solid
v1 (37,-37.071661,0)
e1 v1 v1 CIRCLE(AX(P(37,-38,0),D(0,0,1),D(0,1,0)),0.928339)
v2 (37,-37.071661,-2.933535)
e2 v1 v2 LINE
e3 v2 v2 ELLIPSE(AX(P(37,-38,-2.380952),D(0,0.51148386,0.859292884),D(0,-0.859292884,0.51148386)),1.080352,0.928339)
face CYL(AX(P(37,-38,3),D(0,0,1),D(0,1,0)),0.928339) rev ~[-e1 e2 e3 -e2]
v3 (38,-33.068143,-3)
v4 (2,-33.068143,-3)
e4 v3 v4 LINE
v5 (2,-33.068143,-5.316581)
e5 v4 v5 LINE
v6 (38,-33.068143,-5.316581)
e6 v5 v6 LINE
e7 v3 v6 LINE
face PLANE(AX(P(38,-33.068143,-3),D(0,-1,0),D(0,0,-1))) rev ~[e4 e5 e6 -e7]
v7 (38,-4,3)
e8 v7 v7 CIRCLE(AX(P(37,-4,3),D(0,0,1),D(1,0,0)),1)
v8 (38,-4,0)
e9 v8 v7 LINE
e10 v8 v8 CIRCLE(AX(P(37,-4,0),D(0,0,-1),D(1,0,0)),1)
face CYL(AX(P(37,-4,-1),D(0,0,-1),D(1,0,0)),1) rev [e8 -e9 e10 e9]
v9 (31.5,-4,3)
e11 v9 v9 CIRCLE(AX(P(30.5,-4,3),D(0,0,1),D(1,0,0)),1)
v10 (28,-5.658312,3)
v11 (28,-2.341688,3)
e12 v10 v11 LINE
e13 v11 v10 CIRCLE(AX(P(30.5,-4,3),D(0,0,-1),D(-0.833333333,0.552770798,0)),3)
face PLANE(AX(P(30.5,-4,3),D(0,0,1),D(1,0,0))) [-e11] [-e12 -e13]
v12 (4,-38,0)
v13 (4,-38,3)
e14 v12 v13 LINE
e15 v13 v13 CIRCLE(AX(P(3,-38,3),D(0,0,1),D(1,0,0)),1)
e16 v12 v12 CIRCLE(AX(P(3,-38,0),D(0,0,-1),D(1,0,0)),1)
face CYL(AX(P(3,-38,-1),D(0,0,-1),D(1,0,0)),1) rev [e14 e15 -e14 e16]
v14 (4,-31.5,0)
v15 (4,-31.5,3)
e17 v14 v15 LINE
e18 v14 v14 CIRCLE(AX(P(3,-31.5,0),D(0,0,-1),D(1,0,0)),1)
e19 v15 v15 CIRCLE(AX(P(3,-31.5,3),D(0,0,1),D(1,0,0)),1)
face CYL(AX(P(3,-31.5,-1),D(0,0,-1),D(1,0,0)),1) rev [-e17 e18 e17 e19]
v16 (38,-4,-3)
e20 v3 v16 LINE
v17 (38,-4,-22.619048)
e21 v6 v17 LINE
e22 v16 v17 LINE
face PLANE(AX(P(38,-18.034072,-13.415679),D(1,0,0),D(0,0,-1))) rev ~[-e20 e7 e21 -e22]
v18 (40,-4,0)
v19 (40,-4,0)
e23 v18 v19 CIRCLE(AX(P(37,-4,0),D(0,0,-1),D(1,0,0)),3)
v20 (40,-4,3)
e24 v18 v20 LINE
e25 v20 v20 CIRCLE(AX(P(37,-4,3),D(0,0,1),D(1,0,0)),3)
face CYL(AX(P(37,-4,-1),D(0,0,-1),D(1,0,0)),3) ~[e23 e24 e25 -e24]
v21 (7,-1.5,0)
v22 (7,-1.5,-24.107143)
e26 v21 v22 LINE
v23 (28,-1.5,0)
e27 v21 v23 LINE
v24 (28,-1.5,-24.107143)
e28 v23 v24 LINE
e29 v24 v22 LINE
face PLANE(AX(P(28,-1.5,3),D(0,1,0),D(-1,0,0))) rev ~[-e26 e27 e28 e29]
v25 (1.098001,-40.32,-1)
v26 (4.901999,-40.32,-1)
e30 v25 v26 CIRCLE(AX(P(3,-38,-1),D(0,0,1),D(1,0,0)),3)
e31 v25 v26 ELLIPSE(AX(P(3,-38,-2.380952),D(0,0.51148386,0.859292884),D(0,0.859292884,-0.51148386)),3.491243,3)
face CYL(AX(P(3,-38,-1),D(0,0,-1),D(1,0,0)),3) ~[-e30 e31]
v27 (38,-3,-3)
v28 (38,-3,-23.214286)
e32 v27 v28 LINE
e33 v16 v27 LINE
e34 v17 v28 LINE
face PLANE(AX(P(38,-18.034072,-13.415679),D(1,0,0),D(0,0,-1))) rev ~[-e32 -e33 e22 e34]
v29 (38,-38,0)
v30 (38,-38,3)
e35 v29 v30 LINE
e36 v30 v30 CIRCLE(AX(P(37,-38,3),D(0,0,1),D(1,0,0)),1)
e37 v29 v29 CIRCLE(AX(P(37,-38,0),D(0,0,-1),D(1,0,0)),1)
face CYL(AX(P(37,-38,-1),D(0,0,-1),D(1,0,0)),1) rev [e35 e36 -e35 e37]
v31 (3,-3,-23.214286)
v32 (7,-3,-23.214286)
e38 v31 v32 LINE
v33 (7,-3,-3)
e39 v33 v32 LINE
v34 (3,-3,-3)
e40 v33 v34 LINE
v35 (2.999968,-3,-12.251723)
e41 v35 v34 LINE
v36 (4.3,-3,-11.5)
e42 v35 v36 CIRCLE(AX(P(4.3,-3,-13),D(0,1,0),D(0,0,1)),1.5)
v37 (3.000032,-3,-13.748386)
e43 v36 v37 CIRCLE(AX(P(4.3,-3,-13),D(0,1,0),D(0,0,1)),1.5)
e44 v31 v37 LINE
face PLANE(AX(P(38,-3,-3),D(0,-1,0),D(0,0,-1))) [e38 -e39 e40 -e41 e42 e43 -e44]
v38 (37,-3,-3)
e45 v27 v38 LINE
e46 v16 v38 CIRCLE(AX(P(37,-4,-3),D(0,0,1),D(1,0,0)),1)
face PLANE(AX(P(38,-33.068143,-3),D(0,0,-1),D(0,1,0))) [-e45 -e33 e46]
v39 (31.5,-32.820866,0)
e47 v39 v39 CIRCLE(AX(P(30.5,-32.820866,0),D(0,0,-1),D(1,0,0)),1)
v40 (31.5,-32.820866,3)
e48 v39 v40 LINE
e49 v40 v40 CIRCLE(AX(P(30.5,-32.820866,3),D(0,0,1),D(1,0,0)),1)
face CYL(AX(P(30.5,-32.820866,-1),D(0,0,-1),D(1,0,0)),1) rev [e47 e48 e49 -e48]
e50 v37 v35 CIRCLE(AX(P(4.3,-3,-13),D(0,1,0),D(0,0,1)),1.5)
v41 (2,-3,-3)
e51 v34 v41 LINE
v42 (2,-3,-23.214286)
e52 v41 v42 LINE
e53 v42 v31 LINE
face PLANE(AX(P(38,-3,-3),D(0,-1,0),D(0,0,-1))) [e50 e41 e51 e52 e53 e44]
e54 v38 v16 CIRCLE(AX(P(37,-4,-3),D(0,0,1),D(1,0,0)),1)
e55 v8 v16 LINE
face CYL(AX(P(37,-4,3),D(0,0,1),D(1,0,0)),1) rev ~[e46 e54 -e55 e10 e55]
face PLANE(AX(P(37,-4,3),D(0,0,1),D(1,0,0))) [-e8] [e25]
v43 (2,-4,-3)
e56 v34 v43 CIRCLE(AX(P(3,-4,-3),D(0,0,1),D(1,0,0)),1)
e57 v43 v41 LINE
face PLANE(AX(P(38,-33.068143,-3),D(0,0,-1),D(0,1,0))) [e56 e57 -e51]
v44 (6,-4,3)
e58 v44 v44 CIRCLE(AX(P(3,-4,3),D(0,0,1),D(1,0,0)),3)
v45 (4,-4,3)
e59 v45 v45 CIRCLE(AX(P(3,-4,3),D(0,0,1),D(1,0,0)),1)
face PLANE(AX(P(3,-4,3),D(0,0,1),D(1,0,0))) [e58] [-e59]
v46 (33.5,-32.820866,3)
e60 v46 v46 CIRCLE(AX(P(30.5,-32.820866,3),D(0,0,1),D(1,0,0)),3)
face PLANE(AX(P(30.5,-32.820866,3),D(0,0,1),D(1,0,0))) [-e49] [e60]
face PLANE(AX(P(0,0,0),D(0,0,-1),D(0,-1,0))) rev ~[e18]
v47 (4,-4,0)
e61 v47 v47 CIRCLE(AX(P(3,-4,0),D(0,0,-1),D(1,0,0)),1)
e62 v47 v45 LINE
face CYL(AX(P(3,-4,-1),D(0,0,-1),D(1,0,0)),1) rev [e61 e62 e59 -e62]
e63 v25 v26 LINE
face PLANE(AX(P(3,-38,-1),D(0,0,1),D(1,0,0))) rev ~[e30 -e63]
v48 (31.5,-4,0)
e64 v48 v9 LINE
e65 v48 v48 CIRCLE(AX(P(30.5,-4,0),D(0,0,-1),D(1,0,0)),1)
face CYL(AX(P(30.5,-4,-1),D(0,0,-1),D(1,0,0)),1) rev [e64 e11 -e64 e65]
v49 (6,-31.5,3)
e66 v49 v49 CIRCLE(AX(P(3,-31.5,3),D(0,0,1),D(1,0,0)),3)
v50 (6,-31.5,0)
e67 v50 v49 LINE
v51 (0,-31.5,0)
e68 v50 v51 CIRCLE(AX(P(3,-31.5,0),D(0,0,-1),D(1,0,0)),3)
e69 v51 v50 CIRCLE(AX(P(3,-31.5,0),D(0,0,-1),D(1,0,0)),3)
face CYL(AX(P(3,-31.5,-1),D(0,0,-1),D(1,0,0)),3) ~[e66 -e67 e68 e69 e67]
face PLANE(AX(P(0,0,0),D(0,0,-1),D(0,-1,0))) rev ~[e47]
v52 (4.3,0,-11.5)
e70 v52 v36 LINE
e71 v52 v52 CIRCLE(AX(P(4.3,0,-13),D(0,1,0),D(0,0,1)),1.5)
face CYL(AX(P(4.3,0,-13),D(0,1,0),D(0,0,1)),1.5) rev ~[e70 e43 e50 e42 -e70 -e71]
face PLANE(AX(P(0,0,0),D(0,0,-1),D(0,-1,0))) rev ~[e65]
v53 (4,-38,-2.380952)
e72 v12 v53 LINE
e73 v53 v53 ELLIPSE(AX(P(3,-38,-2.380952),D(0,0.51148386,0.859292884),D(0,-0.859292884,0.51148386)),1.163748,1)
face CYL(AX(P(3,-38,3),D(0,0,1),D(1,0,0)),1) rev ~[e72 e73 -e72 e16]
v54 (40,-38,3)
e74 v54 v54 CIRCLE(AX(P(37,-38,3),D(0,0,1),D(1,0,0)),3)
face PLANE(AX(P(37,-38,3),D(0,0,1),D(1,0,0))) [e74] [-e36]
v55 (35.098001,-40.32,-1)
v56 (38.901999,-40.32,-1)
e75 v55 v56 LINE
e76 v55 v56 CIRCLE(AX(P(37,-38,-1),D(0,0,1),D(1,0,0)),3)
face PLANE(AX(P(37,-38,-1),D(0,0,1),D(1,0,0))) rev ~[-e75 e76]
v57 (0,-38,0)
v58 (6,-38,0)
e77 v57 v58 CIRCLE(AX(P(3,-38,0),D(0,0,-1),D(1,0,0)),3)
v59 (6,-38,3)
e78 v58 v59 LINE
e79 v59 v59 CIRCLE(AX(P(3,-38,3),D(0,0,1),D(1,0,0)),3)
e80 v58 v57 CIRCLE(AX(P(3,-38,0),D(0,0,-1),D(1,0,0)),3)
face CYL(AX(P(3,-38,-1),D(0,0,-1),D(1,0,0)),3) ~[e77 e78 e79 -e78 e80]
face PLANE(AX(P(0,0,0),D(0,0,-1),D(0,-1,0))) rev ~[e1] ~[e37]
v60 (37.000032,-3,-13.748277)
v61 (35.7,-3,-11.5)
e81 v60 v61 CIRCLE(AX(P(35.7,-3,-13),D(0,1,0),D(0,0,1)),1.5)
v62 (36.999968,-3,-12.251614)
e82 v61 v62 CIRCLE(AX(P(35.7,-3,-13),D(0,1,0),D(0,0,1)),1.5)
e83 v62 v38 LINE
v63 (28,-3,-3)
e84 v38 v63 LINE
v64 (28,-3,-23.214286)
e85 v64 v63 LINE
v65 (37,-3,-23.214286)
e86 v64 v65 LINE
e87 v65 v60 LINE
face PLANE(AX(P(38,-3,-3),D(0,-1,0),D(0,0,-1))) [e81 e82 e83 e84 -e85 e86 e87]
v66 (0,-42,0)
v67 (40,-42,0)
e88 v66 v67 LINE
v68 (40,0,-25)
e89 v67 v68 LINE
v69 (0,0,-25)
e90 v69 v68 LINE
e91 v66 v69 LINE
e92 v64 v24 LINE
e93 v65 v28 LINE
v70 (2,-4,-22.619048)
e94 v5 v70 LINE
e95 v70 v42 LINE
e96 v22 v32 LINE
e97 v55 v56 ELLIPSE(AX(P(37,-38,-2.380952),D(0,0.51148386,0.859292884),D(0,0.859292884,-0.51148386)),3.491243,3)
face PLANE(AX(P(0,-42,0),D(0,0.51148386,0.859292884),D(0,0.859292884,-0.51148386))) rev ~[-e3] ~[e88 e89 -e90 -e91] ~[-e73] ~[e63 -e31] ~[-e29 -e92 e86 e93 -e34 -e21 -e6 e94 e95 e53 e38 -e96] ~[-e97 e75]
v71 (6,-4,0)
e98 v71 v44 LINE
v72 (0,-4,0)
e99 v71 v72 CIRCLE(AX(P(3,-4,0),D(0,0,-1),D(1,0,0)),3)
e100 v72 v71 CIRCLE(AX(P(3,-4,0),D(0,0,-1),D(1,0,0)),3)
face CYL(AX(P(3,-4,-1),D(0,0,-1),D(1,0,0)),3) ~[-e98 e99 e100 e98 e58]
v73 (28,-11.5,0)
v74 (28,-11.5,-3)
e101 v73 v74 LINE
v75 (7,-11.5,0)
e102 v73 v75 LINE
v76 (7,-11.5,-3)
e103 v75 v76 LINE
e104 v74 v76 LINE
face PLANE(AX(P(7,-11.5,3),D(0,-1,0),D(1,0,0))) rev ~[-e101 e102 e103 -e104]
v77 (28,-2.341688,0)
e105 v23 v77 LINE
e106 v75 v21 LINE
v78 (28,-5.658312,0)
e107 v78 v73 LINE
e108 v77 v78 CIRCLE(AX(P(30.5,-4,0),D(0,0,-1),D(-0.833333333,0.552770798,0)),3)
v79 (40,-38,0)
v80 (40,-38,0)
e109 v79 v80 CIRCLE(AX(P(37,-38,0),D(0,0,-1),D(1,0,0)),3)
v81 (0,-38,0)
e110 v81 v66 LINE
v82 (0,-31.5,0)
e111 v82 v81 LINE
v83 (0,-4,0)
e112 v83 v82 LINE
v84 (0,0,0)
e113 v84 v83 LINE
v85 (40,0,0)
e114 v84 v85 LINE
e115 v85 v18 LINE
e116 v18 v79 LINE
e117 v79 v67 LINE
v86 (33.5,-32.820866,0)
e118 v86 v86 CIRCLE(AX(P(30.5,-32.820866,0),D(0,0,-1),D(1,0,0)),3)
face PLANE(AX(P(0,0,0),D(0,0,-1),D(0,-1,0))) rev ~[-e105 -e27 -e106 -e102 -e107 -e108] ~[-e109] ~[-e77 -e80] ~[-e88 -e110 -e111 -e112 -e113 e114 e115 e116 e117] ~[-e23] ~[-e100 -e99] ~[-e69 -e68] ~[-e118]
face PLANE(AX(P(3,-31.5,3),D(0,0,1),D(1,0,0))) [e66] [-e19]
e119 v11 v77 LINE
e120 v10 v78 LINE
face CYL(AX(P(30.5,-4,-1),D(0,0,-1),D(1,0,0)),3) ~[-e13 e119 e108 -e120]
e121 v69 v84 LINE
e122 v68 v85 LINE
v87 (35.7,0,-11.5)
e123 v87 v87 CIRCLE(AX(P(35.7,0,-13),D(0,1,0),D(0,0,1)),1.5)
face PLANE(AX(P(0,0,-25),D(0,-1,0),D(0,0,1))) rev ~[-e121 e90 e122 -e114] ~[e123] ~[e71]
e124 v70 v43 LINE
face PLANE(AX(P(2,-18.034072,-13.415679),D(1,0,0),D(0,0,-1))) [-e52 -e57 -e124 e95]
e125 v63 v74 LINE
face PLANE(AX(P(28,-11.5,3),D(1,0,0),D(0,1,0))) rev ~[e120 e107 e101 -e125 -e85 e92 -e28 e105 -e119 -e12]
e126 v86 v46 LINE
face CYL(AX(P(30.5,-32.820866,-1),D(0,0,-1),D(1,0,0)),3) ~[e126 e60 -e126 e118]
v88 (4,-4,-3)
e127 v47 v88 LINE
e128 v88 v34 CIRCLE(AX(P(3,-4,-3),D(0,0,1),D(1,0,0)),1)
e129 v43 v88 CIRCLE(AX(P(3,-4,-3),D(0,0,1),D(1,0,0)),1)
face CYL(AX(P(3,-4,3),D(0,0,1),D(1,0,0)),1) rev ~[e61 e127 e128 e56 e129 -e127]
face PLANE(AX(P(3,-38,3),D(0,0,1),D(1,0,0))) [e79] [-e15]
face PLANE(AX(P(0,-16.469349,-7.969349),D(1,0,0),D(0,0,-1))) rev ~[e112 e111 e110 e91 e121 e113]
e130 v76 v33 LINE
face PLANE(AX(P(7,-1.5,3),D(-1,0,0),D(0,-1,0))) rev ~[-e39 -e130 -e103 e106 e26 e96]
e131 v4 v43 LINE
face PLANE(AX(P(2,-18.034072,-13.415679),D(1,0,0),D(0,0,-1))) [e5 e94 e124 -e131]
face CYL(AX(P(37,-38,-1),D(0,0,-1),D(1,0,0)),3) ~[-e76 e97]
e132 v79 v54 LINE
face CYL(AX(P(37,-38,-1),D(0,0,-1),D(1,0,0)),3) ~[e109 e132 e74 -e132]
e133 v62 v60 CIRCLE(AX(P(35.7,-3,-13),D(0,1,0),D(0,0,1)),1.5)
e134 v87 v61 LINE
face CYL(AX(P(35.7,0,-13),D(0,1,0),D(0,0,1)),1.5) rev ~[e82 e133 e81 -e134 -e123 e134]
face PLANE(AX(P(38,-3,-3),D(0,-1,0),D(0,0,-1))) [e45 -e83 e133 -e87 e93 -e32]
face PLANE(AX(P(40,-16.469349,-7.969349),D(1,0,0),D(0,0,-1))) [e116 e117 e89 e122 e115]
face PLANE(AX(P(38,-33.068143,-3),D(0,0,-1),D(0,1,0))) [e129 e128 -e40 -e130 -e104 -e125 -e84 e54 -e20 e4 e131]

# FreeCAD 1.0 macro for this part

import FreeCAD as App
import Part
import Sketcher
from FreeCAD import Vector
Q = App.Units.Quantity

doc = App.newDocument("Part")
body = doc.addObject("PartDesign::Body", "Body")

# Sketch on YZ plane
sketch1 = body.newObject("Sketcher::SketchObject", "Sketch")
sketch1.AttachmentSupport = (doc.getObject("YZ_Plane"), [""])
sketch1.MapMode = "FlatFace"
sketch1.addGeometry(Part.LineSegment(Vector(0, 0, 0), Vector(-42, 0, 0)), False)
sketch1.addGeometry(Part.LineSegment(Vector(-42, 0, 0), Vector(0, -25, 0)), False)
sketch1.addGeometry(Part.LineSegment(Vector(0, -25, 0), Vector(0, 0, 0)), False)
sketch1.addConstraint(Sketcher.Constraint("Coincident", 0, 2, 1, 1))
sketch1.addConstraint(Sketcher.Constraint("Coincident", 1, 2, 2, 1))
sketch1.addConstraint(Sketcher.Constraint("Coincident", 2, 2, 0, 1))
sketch1.addConstraint(Sketcher.Constraint("Horizontal", 0))
sketch1.addConstraint(Sketcher.Constraint("Vertical", 2))
sketch1.addConstraint(Sketcher.Constraint("Coincident", 2, 2, -1, 1))
sketch1.addConstraint(Sketcher.Constraint("DistanceX", 0, 2, 0, 1, Q("42 mm")))
sketch1.addConstraint(Sketcher.Constraint("DistanceY", 2, 1, 2, 2, Q("25 mm")))
pad1 = body.newObject("PartDesign::Pad", "Pad")
pad1.Profile = sketch1
pad1.Length = 40

# Sketch on YZ plane
sketch2 = body.newObject("Sketcher::SketchObject", "Sketch001")
sketch2.AttachmentSupport = (doc.getObject("YZ_Plane"), [""])
sketch2.MapMode = "FlatFace"
sketch2.AttachmentOffset = App.Placement(Vector(0, 0, 38), App.Rotation())
sketch2.addGeometry(Part.LineSegment(Vector(-3, -3, 0), Vector(-33, -3, 0)), False)
sketch2.addGeometry(Part.LineSegment(Vector(-33, -3, 0), Vector(-33, -24, 0)), False)
sketch2.addGeometry(Part.LineSegment(Vector(-33, -24, 0), Vector(-3, -24, 0)), False)
sketch2.addGeometry(Part.LineSegment(Vector(-3, -24, 0), Vector(-3, -3, 0)), False)
sketch2.addConstraint(Sketcher.Constraint("Coincident", 0, 2, 1, 1))
sketch2.addConstraint(Sketcher.Constraint("Coincident", 1, 2, 2, 1))
sketch2.addConstraint(Sketcher.Constraint("Coincident", 2, 2, 3, 1))
sketch2.addConstraint(Sketcher.Constraint("Coincident", 3, 2, 0, 1))
sketch2.addConstraint(Sketcher.Constraint("Horizontal", 0))
sketch2.addConstraint(Sketcher.Constraint("Vertical", 1))
sketch2.addConstraint(Sketcher.Constraint("Horizontal", 2))
sketch2.addConstraint(Sketcher.Constraint("Vertical", 3))
sketch2.addConstraint(Sketcher.Constraint("DistanceY", 0, 2, -1, 1, Q("3 mm")))
sketch2.addConstraint(Sketcher.Constraint("DistanceX", 2, 2, -1, 1, Q("3 mm")))
sketch2.addConstraint(Sketcher.Constraint("DistanceX", 0, 2, 0, 1, Q("30.068143 mm")))
sketch2.addConstraint(Sketcher.Constraint("DistanceY", 1, 2, 1, 1, Q("20.831358 mm")))
pocket1 = body.newObject("PartDesign::Pocket", "Pocket")
pocket1.Profile = sketch2
pocket1.Length = 36

# Sketch on XZ plane
sketch3 = body.newObject("Sketcher::SketchObject", "Sketch002")
sketch3.AttachmentSupport = (doc.getObject("XZ_Plane"), [""])
sketch3.MapMode = "FlatFace"
sketch3.addGeometry(Part.Circle(Vector(4.3, -13, 0), Vector(0, 0, 1), 1.5), False)
sketch3.addGeometry(Part.Circle(Vector(35.7, -13, 0), Vector(0, 0, 1), 1.5), False)
sketch3.addConstraint(Sketcher.Constraint("Equal", 0, 1))
sketch3.addConstraint(Sketcher.Constraint("Horizontal", 0, 3, 1, 3))
sketch3.addConstraint(Sketcher.Constraint("Diameter", 0, Q("3 mm")))
sketch3.addConstraint(Sketcher.Constraint("DistanceY", 0, 3, -1, 1, Q("13 mm")))
sketch3.addConstraint(Sketcher.Constraint("DistanceX", -1, 1, 0, 3, Q("4.3 mm")))
sketch3.addConstraint(Sketcher.Constraint("DistanceX", -1, 1, 1, 3, Q("35.7 mm")))
pocket2 = body.newObject("PartDesign::Pocket", "Pocket001")
pocket2.Profile = sketch3
pocket2.Length = 32
pocket2.Reversed = True

# Sketch on XY plane
sketch4 = body.newObject("Sketcher::SketchObject", "Sketch003")
sketch4.AttachmentSupport = (doc.getObject("XY_Plane"), [""])
sketch4.MapMode = "FlatFace"
sketch4.addGeometry(Part.Circle(Vector(3, -4, 0), Vector(0, 0, 1), 3), False)
sketch4.addGeometry(Part.Circle(Vector(3, -4, 0), Vector(0, 0, 1), 1), False)
sketch4.addGeometry(Part.Circle(Vector(37, -4, 0), Vector(0, 0, 1), 3), False)
sketch4.addGeometry(Part.Circle(Vector(37, -4, 0), Vector(0, 0, 1), 1), False)
sketch4.addGeometry(Part.Circle(Vector(37, -38, 0), Vector(0, 0, 1), 3), False)
sketch4.addGeometry(Part.Circle(Vector(37, -38, 0), Vector(0, 0, 1), 1), False)
sketch4.addGeometry(Part.Circle(Vector(3, -38, 0), Vector(0, 0, 1), 3), False)
sketch4.addGeometry(Part.Circle(Vector(3, -38, 0), Vector(0, 0, 1), 1), False)
sketch4.addGeometry(Part.Circle(Vector(30.5, -4, 0), Vector(0, 0, 1), 3), False)
sketch4.addGeometry(Part.Circle(Vector(30.5, -4, 0), Vector(0, 0, 1), 1), False)
sketch4.addGeometry(Part.Circle(Vector(30.5, -32.8, 0), Vector(0, 0, 1), 3), False)
sketch4.addGeometry(Part.Circle(Vector(30.5, -32.8, 0), Vector(0, 0, 1), 1), False)
sketch4.addGeometry(Part.Circle(Vector(3, -31.5, 0), Vector(0, 0, 1), 3), False)
sketch4.addGeometry(Part.Circle(Vector(3, -31.5, 0), Vector(0, 0, 1), 1), False)
sketch4.addConstraint(Sketcher.Constraint("Coincident", 1, 3, 0, 3))
sketch4.addConstraint(Sketcher.Constraint("Coincident", 3, 3, 2, 3))
sketch4.addConstraint(Sketcher.Constraint("Coincident", 5, 3, 4, 3))
sketch4.addConstraint(Sketcher.Constraint("Coincident", 7, 3, 6, 3))
sketch4.addConstraint(Sketcher.Constraint("Coincident", 9, 3, 8, 3))
sketch4.addConstraint(Sketcher.Constraint("Coincident", 11, 3, 10, 3))
sketch4.addConstraint(Sketcher.Constraint("Coincident", 13, 3, 12, 3))
sketch4.addConstraint(Sketcher.Constraint("Equal", 0, 2))
sketch4.addConstraint(Sketcher.Constraint("Equal", 1, 3))
sketch4.addConstraint(Sketcher.Constraint("Equal", 2, 4))
sketch4.addConstraint(Sketcher.Constraint("Equal", 3, 5))
sketch4.addConstraint(Sketcher.Constraint("Equal", 4, 6))
sketch4.addConstraint(Sketcher.Constraint("Equal", 5, 7))
sketch4.addConstraint(Sketcher.Constraint("Equal", 6, 8))
sketch4.addConstraint(Sketcher.Constraint("Equal", 7, 9))
sketch4.addConstraint(Sketcher.Constraint("Equal", 8, 10))
sketch4.addConstraint(Sketcher.Constraint("Equal", 9, 11))
sketch4.addConstraint(Sketcher.Constraint("Equal", 10, 12))
sketch4.addConstraint(Sketcher.Constraint("Equal", 11, 13))
sketch4.addConstraint(Sketcher.Constraint("Horizontal", 1, 3, 2, 3))
sketch4.addConstraint(Sketcher.Constraint("Horizontal", 5, 3, 6, 3))
sketch4.addConstraint(Sketcher.Constraint("Horizontal", 3, 3, 8, 3))
sketch4.addConstraint(Sketcher.Constraint("Vertical", 3, 3, 4, 3))
sketch4.addConstraint(Sketcher.Constraint("Vertical", 1, 3, 6, 3))
sketch4.addConstraint(Sketcher.Constraint("Vertical", 9, 3, 10, 3))
sketch4.addConstraint(Sketcher.Constraint("Vertical", 7, 3, 12, 3))
sketch4.addConstraint(Sketcher.Constraint("Diameter", 0, Q("6 mm")))
sketch4.addConstraint(Sketcher.Constraint("Diameter", 1, Q("2 mm")))
sketch4.addConstraint(Sketcher.Constraint("DistanceX", -1, 1, 0, 3, Q("3 mm")))
sketch4.addConstraint(Sketcher.Constraint("DistanceY", 0, 3, -1, 1, Q("4 mm")))
sketch4.addConstraint(Sketcher.Constraint("DistanceX", -1, 1, 2, 3, Q("37 mm")))
sketch4.addConstraint(Sketcher.Constraint("DistanceY", 4, 3, -1, 1, Q("38 mm")))
sketch4.addConstraint(Sketcher.Constraint("DistanceX", -1, 1, 8, 3, Q("30.5 mm")))
sketch4.addConstraint(Sketcher.Constraint("DistanceY", 12, 3, -1, 1, Q("31.5 mm")))
sketch4.addConstraint(Sketcher.Constraint("DistanceY", 10, 3, -1, 1, Q("32.820866 mm")))
pad2 = body.newObject("PartDesign::Pad", "Pad001")
pad2.Profile = sketch4
pad2.Type = "TwoLengths"
pad2.Length = 3
pad2.Length2 = 1

# Sketch on XY plane
sketch5 = body.newObject("Sketcher::SketchObject", "Sketch004")
sketch5.AttachmentSupport = (doc.getObject("XY_Plane"), [""])
sketch5.MapMode = "FlatFace"
sketch5.AttachmentOffset = App.Placement(Vector(0, 0, 3), App.Rotation())
sketch5.addGeometry(Part.Circle(Vector(3, -4, 0), Vector(0, 0, 1), 1), False)
sketch5.addGeometry(Part.Circle(Vector(37, -4, 0), Vector(0, 0, 1), 1), False)
sketch5.addGeometry(Part.Circle(Vector(37, -38, 0), Vector(0, 0, 1), 0.9), False)
sketch5.addGeometry(Part.Circle(Vector(3, -38, 0), Vector(0, 0, 1), 1), False)
sketch5.addGeometry(Part.LineSegment(Vector(7, -1.5, 0), Vector(7, -11.5, 0)), False)
sketch5.addGeometry(Part.LineSegment(Vector(7, -11.5, 0), Vector(28, -11.5, 0)), False)
sketch5.addGeometry(Part.LineSegment(Vector(28, -11.5, 0), Vector(28, -1.5, 0)), False)
sketch5.addGeometry(Part.LineSegment(Vector(28, -1.5, 0), Vector(7, -1.5, 0)), False)
sketch5.addConstraint(Sketcher.Constraint("Coincident", 4, 2, 5, 1))
sketch5.addConstraint(Sketcher.Constraint("Coincident", 5, 2, 6, 1))
sketch5.addConstraint(Sketcher.Constraint("Coincident", 6, 2, 7, 1))
sketch5.addConstraint(Sketcher.Constraint("Coincident", 7, 2, 4, 1))
sketch5.addConstraint(Sketcher.Constraint("Vertical", 4))
sketch5.addConstraint(Sketcher.Constraint("Horizontal", 5))
sketch5.addConstraint(Sketcher.Constraint("Vertical", 6))
sketch5.addConstraint(Sketcher.Constraint("Horizontal", 7))
sketch5.addConstraint(Sketcher.Constraint("Equal", 0, 1))
sketch5.addConstraint(Sketcher.Constraint("Equal", 1, 3))
sketch5.addConstraint(Sketcher.Constraint("Horizontal", 0, 3, 1, 3))
sketch5.addConstraint(Sketcher.Constraint("Horizontal", 2, 3, 3, 3))
sketch5.addConstraint(Sketcher.Constraint("Vertical", 1, 3, 2, 3))
sketch5.addConstraint(Sketcher.Constraint("Vertical", 0, 3, 3, 3))
sketch5.addConstraint(Sketcher.Constraint("Diameter", 0, Q("2 mm")))
sketch5.addConstraint(Sketcher.Constraint("DistanceX", 5, 1, 5, 2, Q("21 mm")))
sketch5.addConstraint(Sketcher.Constraint("DistanceY", 4, 2, 4, 1, Q("10 mm")))
sketch5.addConstraint(Sketcher.Constraint("DistanceX", -1, 1, 0, 3, Q("3 mm")))
sketch5.addConstraint(Sketcher.Constraint("DistanceY", 0, 3, -1, 1, Q("4 mm")))
sketch5.addConstraint(Sketcher.Constraint("DistanceX", -1, 1, 1, 3, Q("37 mm")))
sketch5.addConstraint(Sketcher.Constraint("DistanceY", 2, 3, -1, 1, Q("38 mm")))
sketch5.addConstraint(Sketcher.Constraint("DistanceX", -1, 1, 4, 2, Q("7 mm")))
sketch5.addConstraint(Sketcher.Constraint("DistanceY", 4, 2, -1, 1, Q("11.5 mm")))
sketch5.addConstraint(Sketcher.Constraint("Diameter", 2, Q("1.856677 mm")))
pocket3 = body.newObject("PartDesign::Pocket", "Pocket002")
pocket3.Profile = sketch5
pocket3.Type = "ThroughAll"

doc.recompute()
